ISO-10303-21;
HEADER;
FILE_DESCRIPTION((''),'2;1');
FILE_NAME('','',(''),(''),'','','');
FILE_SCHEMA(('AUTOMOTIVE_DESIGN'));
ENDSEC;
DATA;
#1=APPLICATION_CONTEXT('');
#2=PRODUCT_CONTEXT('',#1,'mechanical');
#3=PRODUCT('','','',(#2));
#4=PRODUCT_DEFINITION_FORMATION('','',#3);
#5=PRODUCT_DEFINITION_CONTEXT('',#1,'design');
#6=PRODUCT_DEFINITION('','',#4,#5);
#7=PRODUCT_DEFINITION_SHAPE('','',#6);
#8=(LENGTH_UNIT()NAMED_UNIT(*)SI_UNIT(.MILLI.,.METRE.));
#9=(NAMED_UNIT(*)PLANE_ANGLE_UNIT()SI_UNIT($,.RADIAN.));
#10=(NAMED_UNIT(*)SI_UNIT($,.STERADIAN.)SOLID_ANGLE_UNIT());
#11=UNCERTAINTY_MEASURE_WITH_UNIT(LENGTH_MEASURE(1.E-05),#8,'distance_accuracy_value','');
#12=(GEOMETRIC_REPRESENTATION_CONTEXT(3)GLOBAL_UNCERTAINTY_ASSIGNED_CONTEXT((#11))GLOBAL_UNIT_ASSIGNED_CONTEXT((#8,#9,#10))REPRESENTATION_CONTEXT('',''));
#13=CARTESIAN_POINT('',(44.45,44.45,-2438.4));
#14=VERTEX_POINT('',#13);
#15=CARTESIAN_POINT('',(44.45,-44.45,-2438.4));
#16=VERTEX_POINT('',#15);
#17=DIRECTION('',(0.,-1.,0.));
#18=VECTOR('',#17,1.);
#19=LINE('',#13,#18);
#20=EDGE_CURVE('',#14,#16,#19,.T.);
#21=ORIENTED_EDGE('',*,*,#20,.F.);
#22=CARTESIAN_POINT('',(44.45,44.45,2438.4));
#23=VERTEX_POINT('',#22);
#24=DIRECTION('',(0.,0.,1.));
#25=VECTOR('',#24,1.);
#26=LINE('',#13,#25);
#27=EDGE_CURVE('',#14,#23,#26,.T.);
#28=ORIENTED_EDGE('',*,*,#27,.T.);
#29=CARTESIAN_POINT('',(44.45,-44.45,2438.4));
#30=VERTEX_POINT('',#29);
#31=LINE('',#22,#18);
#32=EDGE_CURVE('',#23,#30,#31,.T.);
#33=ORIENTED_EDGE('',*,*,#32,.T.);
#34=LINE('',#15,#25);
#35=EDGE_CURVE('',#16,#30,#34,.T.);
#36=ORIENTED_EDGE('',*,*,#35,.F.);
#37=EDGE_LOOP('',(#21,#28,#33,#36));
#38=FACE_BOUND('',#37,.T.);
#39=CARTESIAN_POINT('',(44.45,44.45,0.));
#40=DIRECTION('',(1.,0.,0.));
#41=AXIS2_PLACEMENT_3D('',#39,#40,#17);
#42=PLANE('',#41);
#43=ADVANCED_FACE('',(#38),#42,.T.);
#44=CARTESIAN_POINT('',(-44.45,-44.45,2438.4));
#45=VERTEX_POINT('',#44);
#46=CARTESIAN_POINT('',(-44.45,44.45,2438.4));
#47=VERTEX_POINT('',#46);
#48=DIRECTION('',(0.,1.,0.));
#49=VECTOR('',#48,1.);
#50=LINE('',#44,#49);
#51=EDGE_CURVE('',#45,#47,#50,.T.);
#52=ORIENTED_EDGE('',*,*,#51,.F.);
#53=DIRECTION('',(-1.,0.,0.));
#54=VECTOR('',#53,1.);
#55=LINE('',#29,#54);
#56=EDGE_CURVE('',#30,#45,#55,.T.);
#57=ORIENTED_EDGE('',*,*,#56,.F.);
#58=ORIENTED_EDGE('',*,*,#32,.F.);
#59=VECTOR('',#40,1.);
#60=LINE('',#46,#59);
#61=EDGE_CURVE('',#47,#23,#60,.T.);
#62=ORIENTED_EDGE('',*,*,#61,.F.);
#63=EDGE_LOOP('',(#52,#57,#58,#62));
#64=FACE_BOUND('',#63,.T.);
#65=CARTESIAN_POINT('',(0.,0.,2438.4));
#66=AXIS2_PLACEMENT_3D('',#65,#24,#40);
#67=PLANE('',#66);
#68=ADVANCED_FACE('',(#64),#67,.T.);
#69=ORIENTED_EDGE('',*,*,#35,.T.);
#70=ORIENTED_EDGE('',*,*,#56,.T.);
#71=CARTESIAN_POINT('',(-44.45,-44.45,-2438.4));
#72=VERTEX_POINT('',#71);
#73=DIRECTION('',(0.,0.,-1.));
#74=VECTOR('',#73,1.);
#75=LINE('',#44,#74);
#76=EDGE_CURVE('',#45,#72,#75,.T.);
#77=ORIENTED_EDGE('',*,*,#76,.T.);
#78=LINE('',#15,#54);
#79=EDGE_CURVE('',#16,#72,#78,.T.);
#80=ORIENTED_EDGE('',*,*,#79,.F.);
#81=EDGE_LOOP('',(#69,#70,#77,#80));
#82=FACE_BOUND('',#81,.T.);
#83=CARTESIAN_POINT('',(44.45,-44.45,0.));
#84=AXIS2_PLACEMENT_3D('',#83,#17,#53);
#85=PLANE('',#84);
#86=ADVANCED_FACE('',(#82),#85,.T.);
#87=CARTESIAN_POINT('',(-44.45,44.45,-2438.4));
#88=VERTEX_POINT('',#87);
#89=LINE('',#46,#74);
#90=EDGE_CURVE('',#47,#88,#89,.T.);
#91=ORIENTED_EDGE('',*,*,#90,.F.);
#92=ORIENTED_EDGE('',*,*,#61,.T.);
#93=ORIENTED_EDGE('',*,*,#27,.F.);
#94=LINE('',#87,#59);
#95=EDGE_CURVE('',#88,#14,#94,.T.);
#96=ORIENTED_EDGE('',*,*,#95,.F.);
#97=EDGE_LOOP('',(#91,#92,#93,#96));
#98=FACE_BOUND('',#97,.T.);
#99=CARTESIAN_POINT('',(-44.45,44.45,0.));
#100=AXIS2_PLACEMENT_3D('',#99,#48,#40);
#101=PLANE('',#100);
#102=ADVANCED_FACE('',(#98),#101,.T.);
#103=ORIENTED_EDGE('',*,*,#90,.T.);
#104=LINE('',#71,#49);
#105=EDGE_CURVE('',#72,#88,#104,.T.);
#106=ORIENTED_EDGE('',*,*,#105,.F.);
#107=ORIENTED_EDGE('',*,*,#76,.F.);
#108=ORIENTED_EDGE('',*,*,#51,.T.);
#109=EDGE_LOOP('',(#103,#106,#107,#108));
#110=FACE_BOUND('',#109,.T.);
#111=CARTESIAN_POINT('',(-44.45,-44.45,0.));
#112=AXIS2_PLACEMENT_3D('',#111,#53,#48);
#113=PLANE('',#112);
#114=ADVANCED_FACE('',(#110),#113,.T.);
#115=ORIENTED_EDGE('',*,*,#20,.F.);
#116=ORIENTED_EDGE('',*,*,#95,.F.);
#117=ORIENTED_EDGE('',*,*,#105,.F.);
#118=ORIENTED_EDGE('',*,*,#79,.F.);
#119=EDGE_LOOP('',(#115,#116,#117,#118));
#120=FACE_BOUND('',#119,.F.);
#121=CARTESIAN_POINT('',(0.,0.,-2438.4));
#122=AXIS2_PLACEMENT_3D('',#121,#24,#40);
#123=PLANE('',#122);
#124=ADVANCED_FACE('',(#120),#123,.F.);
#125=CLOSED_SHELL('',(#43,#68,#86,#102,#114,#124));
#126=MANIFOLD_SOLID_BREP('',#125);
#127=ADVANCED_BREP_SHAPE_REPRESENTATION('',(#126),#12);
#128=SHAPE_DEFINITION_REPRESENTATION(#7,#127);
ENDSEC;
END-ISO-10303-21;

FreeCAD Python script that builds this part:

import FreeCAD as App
import Part
import Sketcher
from FreeCAD import Vector
Q = App.Units.Quantity


def add_polygon(sketch, points):
    """Adds a closed chain of lines whose ends are joined by coincident constraints."""
    first, n = sketch.GeometryCount, len(points)
    for a, b in zip(points, points[1:] + points[:1]):
        sketch.addGeometry(Part.LineSegment(App.Vector(*a, 0), App.Vector(*b, 0)), False)
    for i in range(n):
        sketch.addConstraint(Sketcher.Constraint("Coincident", first + i, 2, first + (i + 1) % n, 1))

doc = App.newDocument("Part")
body = doc.addObject("PartDesign::Body", "Body")

# Sketch on XY plane
sketch1 = body.newObject("Sketcher::SketchObject", "Sketch")
sketch1.AttachmentSupport = (doc.getObject("XY_Plane"), [""])
sketch1.MapMode = "FlatFace"
add_polygon(sketch1, [(-44, -44), (44, -44), (44, 44), (-44, 44)])  # lines 0-3
sketch1.addConstraint([
    Sketcher.Constraint("Horizontal", 0),
    Sketcher.Constraint("Vertical", 1),
    Sketcher.Constraint("Horizontal", 2),
    Sketcher.Constraint("Vertical", 3),
    Sketcher.Constraint("Symmetric", 0, 2, 2, 2, -1, 1),
    Sketcher.Constraint("Equal", 2, 1),
    Sketcher.Constraint("DistanceX", 0, 1, 0, 2, Q("3.5 in")),
])
pad1 = body.newObject("PartDesign::Pad", "Pad")
pad1.Profile = sketch1
pad1.Length = Q("192 in")
pad1.Midplane = True

doc.recompute()
